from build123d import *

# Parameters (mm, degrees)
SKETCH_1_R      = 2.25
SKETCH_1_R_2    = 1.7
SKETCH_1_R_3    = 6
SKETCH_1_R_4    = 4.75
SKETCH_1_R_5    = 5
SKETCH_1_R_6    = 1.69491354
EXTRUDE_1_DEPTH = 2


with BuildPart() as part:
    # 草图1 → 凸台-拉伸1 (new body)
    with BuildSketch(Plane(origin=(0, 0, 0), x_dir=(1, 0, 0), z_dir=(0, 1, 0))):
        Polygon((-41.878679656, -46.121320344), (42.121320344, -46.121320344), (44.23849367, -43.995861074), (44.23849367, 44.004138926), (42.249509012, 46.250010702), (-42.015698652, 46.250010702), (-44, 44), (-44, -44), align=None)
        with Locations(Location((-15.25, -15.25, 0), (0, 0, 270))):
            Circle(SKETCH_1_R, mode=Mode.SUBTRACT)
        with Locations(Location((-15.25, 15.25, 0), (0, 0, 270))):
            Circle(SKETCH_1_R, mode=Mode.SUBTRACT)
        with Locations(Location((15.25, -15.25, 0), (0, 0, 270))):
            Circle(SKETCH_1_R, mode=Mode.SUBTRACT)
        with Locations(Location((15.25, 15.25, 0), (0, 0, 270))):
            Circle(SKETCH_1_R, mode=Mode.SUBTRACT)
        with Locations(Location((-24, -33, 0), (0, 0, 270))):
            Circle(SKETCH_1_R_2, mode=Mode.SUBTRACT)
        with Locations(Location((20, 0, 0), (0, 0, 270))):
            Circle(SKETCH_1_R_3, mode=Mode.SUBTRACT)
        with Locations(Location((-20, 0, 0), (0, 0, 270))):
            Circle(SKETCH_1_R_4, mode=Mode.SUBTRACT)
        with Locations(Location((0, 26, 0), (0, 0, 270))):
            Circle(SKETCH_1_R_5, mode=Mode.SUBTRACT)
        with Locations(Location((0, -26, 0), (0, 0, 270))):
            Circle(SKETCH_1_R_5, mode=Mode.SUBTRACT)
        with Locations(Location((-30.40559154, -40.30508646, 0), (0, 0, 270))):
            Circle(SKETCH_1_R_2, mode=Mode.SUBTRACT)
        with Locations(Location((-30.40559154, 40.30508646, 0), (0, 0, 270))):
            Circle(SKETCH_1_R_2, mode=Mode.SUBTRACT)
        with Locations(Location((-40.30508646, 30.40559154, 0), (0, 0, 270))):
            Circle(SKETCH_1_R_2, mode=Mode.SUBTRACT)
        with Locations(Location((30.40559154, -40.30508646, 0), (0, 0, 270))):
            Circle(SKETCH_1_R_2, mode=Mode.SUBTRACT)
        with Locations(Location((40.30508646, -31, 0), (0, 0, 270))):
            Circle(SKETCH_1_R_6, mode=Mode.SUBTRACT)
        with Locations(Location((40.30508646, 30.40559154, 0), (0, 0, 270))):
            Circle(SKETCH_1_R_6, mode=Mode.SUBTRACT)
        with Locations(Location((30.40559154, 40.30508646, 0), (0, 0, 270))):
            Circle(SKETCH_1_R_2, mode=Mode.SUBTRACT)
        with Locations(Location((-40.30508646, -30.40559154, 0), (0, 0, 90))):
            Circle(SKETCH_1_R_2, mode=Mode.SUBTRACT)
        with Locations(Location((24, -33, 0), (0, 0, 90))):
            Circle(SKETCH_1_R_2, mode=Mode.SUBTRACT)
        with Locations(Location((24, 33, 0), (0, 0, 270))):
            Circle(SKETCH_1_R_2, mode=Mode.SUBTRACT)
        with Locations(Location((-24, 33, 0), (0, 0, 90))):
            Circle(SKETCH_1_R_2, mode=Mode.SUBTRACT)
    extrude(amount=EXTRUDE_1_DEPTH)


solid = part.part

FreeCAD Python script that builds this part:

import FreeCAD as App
import Part
import Sketcher
from FreeCAD import Vector
Q = App.Units.Quantity


def add_polygon(sketch, points):
    """Adds a closed chain of lines whose ends are joined by coincident constraints."""
    first, n = sketch.GeometryCount, len(points)
    for a, b in zip(points, points[1:] + points[:1]):
        sketch.addGeometry(Part.LineSegment(App.Vector(*a, 0), App.Vector(*b, 0)), False)
    for i in range(n):
        sketch.addConstraint(Sketcher.Constraint("Coincident", first + i, 2, first + (i + 1) % n, 1))

doc = App.newDocument("Part")
body = doc.addObject("PartDesign::Body", "Body")

# Sketch on XZ plane
sketch1 = body.newObject("Sketcher::SketchObject", "Sketch")
sketch1.AttachmentSupport = (doc.getObject("XZ_Plane"), [""])
sketch1.MapMode = "FlatFace"
add_polygon(sketch1, [(-41.9, 46.1), (42.1, 46.1), (44.2, 44), (44.2, -44), (42.2, -46.3), (-42, -46.3), (-44, -44), (-44, 44)])  # lines 0-7
sketch1.addGeometry(Part.Circle(Vector(-30.4, 40.3, 0), Vector(0, 0, 1), 1.7), False)  # 8
sketch1.addGeometry(Part.Circle(Vector(-24, 33, 0), Vector(0, 0, 1), 1.7), False)  # 9
sketch1.addGeometry(Part.Circle(Vector(-40.3, 30.4, 0), Vector(0, 0, 1), 1.7), False)  # 10
sketch1.addGeometry(Part.Circle(Vector(-15.2, 15.2, 0), Vector(0, 0, 1), 2.2), False)  # 11
sketch1.addGeometry(Part.Circle(Vector(0, 26, 0), Vector(0, 0, 1), 5), False)  # 12
sketch1.addGeometry(Part.Circle(Vector(30.4, 40.3, 0), Vector(0, 0, 1), 1.7), False)  # 13
sketch1.addGeometry(Part.Circle(Vector(24, 33, 0), Vector(0, 0, 1), 1.7), False)  # 14
sketch1.addGeometry(Part.Circle(Vector(40.3, 31, 0), Vector(0, 0, 1), 1.7), False)  # 15
sketch1.addGeometry(Part.Circle(Vector(15.2, 15.2, 0), Vector(0, 0, 1), 2.2), False)  # 16
sketch1.addGeometry(Part.Circle(Vector(-20, 0, 0), Vector(0, 0, 1), 4.8), False)  # 17
sketch1.addGeometry(Part.Circle(Vector(-15.2, -15.2, 0), Vector(0, 0, 1), 2.2), False)  # 18
sketch1.addGeometry(Part.Circle(Vector(-40.3, -30.4, 0), Vector(0, 0, 1), 1.7), False)  # 19
sketch1.addGeometry(Part.Circle(Vector(-24, -33, 0), Vector(0, 0, 1), 1.7), False)  # 20
sketch1.addGeometry(Part.Circle(Vector(-30.4, -40.3, 0), Vector(0, 0, 1), 1.7), False)  # 21
sketch1.addGeometry(Part.Circle(Vector(20, 0, 0), Vector(0, 0, 1), 6), False)  # 22
sketch1.addGeometry(Part.Circle(Vector(15.2, -15.2, 0), Vector(0, 0, 1), 2.2), False)  # 23
sketch1.addGeometry(Part.Circle(Vector(0, -26, 0), Vector(0, 0, 1), 5), False)  # 24
sketch1.addGeometry(Part.Circle(Vector(40.3, -30.4, 0), Vector(0, 0, 1), 1.7), False)  # 25
sketch1.addGeometry(Part.Circle(Vector(24, -33, 0), Vector(0, 0, 1), 1.7), False)  # 26
sketch1.addGeometry(Part.Circle(Vector(30.4, -40.3, 0), Vector(0, 0, 1), 1.7), False)  # 27
sketch1.addConstraint(Sketcher.Constraint("Horizontal", 0))
sketch1.addConstraint(Sketcher.Constraint("Vertical", 2))
sketch1.addConstraint(Sketcher.Constraint("Horizontal", 4))
sketch1.addConstraint(Sketcher.Constraint("Vertical", 6))
sketch1.addConstraint(Sketcher.Constraint("Equal", 8, 9))
sketch1.addConstraint(Sketcher.Constraint("Equal", 9, 10))
sketch1.addConstraint(Sketcher.Constraint("Equal", 10, 13))
sketch1.addConstraint(Sketcher.Constraint("Equal", 13, 14))
sketch1.addConstraint(Sketcher.Constraint("Equal", 11, 16))
sketch1.addConstraint(Sketcher.Constraint("Equal", 16, 18))
sketch1.addConstraint(Sketcher.Constraint("Equal", 14, 19))
sketch1.addConstraint(Sketcher.Constraint("Equal", 19, 20))
sketch1.addConstraint(Sketcher.Constraint("Equal", 20, 21))
sketch1.addConstraint(Sketcher.Constraint("Equal", 18, 23))
sketch1.addConstraint(Sketcher.Constraint("Equal", 12, 24))
sketch1.addConstraint(Sketcher.Constraint("Equal", 15, 25))
sketch1.addConstraint(Sketcher.Constraint("Equal", 21, 26))
sketch1.addConstraint(Sketcher.Constraint("Equal", 26, 27))
sketch1.addConstraint(Sketcher.Constraint("Symmetric", 16, 3, 18, 3, -1, 1))
sketch1.addConstraint(Sketcher.Constraint("Symmetric", 14, 3, 20, 3, -1, 1))
sketch1.addConstraint(Sketcher.Constraint("Symmetric", 13, 3, 21, 3, -1, 1))
sketch1.addConstraint(Sketcher.Constraint("Symmetric", 17, 3, 22, 3, -1, 1))
sketch1.addConstraint(Sketcher.Constraint("Symmetric", 11, 3, 23, 3, -1, 1))
sketch1.addConstraint(Sketcher.Constraint("Symmetric", 12, 3, 24, 3, -1, 1))
sketch1.addConstraint(Sketcher.Constraint("Symmetric", 10, 3, 25, 3, -1, 1))
sketch1.addConstraint(Sketcher.Constraint("Symmetric", 9, 3, 26, 3, -1, 1))
sketch1.addConstraint(Sketcher.Constraint("Symmetric", 8, 3, 27, 3, -1, 1))
sketch1.addConstraint(Sketcher.Constraint("Symmetric", 8, 3, 13, 3, -2))
sketch1.addConstraint(Sketcher.Constraint("Symmetric", 9, 3, 14, 3, -2))
sketch1.addConstraint(Sketcher.Constraint("Symmetric", 11, 3, 16, 3, -2))
sketch1.addConstraint(Sketcher.Constraint("Symmetric", 19, 3, 25, 3, -2))
sketch1.addConstraint(Sketcher.Constraint("PointOnObject", 12, 3, -2))
sketch1.addConstraint(Sketcher.Constraint("PointOnObject", 17, 3, -1))
sketch1.addConstraint(Sketcher.Constraint("Vertical", 15, 3, 25, 3))
sketch1.addConstraint(Sketcher.Constraint("Equal", 2, 6))
sketch1.addConstraint(Sketcher.Constraint("Equal", 1, 3))
sketch1.addConstraint(Sketcher.Constraint("Equal", 3, 5))
sketch1.addConstraint(Sketcher.Constraint("Equal", 5, 7))
sketch1.addConstraint(Sketcher.Constraint("Diameter", 12, 10.0))
sketch1.addConstraint(Sketcher.Constraint("Diameter", 22, 12.0))
sketch1.addConstraint(Sketcher.Constraint("Diameter", 8, 3.4))
sketch1.addConstraint(Sketcher.Constraint("Diameter", 11, 4.5))
sketch1.addConstraint(Sketcher.Constraint("Diameter", 17, 9.5))
sketch1.addConstraint(Sketcher.Constraint("DistanceX", 0, 1, 0, 2, 84.0))
sketch1.addConstraint(Sketcher.Constraint("DistanceY", 2, 2, 2, 1, 88.0))
sketch1.addConstraint(Sketcher.Constraint("Angle", 7, Q("45 deg")))
sketch1.addConstraint(Sketcher.Constraint("Distance", 1, 3.0))
sketch1.addConstraint(Sketcher.Constraint("DistanceX", 9, 3, -1, 1, 24.0))
sketch1.addConstraint(Sketcher.Constraint("DistanceY", -1, 1, 9, 3, 33.0))
sketch1.addConstraint(Sketcher.Constraint("DistanceY", -1, 1, 12, 3, 26.0))
sketch1.addConstraint(Sketcher.Constraint("DistanceY", -1, 1, 15, 3, 31.0))
sketch1.addConstraint(Sketcher.Constraint("DistanceX", 17, 3, -1, 1, 20.0))
sketch1.addConstraint(Sketcher.Constraint("DistanceX", 5, 2, -1, 1, 44.0))
sketch1.addConstraint(Sketcher.Constraint("DistanceY", 5, 2, -1, 1, 44.0))
sketch1.addConstraint(Sketcher.Constraint("DistanceX", 11, 3, 16, 3, 30.5))
sketch1.addConstraint(Sketcher.Constraint("DistanceY", 18, 3, 11, 3, 30.5))
sketch1.addConstraint(Sketcher.Constraint("Diameter", 15, 3.389827))
sketch1.addConstraint(Sketcher.Constraint("DistanceX", 4, 2, -1, 1, 42.015699))
sketch1.addConstraint(Sketcher.Constraint("DistanceX", 4, 2, 4, 1, 84.265208))
sketch1.addConstraint(Sketcher.Constraint("DistanceX", 8, 3, -1, 1, 30.405592))
sketch1.addConstraint(Sketcher.Constraint("DistanceY", -1, 1, 10, 3, 30.405592))
sketch1.addConstraint(Sketcher.Constraint("DistanceX", 10, 3, 13, 3, 70.710678))
sketch1.addConstraint(Sketcher.Constraint("DistanceY", -1, 1, 8, 3, 40.305086))
pad1 = body.newObject("PartDesign::Pad", "Pad")
pad1.Profile = sketch1
pad1.Length = 2
pad1.Reversed = True

doc.recompute()
